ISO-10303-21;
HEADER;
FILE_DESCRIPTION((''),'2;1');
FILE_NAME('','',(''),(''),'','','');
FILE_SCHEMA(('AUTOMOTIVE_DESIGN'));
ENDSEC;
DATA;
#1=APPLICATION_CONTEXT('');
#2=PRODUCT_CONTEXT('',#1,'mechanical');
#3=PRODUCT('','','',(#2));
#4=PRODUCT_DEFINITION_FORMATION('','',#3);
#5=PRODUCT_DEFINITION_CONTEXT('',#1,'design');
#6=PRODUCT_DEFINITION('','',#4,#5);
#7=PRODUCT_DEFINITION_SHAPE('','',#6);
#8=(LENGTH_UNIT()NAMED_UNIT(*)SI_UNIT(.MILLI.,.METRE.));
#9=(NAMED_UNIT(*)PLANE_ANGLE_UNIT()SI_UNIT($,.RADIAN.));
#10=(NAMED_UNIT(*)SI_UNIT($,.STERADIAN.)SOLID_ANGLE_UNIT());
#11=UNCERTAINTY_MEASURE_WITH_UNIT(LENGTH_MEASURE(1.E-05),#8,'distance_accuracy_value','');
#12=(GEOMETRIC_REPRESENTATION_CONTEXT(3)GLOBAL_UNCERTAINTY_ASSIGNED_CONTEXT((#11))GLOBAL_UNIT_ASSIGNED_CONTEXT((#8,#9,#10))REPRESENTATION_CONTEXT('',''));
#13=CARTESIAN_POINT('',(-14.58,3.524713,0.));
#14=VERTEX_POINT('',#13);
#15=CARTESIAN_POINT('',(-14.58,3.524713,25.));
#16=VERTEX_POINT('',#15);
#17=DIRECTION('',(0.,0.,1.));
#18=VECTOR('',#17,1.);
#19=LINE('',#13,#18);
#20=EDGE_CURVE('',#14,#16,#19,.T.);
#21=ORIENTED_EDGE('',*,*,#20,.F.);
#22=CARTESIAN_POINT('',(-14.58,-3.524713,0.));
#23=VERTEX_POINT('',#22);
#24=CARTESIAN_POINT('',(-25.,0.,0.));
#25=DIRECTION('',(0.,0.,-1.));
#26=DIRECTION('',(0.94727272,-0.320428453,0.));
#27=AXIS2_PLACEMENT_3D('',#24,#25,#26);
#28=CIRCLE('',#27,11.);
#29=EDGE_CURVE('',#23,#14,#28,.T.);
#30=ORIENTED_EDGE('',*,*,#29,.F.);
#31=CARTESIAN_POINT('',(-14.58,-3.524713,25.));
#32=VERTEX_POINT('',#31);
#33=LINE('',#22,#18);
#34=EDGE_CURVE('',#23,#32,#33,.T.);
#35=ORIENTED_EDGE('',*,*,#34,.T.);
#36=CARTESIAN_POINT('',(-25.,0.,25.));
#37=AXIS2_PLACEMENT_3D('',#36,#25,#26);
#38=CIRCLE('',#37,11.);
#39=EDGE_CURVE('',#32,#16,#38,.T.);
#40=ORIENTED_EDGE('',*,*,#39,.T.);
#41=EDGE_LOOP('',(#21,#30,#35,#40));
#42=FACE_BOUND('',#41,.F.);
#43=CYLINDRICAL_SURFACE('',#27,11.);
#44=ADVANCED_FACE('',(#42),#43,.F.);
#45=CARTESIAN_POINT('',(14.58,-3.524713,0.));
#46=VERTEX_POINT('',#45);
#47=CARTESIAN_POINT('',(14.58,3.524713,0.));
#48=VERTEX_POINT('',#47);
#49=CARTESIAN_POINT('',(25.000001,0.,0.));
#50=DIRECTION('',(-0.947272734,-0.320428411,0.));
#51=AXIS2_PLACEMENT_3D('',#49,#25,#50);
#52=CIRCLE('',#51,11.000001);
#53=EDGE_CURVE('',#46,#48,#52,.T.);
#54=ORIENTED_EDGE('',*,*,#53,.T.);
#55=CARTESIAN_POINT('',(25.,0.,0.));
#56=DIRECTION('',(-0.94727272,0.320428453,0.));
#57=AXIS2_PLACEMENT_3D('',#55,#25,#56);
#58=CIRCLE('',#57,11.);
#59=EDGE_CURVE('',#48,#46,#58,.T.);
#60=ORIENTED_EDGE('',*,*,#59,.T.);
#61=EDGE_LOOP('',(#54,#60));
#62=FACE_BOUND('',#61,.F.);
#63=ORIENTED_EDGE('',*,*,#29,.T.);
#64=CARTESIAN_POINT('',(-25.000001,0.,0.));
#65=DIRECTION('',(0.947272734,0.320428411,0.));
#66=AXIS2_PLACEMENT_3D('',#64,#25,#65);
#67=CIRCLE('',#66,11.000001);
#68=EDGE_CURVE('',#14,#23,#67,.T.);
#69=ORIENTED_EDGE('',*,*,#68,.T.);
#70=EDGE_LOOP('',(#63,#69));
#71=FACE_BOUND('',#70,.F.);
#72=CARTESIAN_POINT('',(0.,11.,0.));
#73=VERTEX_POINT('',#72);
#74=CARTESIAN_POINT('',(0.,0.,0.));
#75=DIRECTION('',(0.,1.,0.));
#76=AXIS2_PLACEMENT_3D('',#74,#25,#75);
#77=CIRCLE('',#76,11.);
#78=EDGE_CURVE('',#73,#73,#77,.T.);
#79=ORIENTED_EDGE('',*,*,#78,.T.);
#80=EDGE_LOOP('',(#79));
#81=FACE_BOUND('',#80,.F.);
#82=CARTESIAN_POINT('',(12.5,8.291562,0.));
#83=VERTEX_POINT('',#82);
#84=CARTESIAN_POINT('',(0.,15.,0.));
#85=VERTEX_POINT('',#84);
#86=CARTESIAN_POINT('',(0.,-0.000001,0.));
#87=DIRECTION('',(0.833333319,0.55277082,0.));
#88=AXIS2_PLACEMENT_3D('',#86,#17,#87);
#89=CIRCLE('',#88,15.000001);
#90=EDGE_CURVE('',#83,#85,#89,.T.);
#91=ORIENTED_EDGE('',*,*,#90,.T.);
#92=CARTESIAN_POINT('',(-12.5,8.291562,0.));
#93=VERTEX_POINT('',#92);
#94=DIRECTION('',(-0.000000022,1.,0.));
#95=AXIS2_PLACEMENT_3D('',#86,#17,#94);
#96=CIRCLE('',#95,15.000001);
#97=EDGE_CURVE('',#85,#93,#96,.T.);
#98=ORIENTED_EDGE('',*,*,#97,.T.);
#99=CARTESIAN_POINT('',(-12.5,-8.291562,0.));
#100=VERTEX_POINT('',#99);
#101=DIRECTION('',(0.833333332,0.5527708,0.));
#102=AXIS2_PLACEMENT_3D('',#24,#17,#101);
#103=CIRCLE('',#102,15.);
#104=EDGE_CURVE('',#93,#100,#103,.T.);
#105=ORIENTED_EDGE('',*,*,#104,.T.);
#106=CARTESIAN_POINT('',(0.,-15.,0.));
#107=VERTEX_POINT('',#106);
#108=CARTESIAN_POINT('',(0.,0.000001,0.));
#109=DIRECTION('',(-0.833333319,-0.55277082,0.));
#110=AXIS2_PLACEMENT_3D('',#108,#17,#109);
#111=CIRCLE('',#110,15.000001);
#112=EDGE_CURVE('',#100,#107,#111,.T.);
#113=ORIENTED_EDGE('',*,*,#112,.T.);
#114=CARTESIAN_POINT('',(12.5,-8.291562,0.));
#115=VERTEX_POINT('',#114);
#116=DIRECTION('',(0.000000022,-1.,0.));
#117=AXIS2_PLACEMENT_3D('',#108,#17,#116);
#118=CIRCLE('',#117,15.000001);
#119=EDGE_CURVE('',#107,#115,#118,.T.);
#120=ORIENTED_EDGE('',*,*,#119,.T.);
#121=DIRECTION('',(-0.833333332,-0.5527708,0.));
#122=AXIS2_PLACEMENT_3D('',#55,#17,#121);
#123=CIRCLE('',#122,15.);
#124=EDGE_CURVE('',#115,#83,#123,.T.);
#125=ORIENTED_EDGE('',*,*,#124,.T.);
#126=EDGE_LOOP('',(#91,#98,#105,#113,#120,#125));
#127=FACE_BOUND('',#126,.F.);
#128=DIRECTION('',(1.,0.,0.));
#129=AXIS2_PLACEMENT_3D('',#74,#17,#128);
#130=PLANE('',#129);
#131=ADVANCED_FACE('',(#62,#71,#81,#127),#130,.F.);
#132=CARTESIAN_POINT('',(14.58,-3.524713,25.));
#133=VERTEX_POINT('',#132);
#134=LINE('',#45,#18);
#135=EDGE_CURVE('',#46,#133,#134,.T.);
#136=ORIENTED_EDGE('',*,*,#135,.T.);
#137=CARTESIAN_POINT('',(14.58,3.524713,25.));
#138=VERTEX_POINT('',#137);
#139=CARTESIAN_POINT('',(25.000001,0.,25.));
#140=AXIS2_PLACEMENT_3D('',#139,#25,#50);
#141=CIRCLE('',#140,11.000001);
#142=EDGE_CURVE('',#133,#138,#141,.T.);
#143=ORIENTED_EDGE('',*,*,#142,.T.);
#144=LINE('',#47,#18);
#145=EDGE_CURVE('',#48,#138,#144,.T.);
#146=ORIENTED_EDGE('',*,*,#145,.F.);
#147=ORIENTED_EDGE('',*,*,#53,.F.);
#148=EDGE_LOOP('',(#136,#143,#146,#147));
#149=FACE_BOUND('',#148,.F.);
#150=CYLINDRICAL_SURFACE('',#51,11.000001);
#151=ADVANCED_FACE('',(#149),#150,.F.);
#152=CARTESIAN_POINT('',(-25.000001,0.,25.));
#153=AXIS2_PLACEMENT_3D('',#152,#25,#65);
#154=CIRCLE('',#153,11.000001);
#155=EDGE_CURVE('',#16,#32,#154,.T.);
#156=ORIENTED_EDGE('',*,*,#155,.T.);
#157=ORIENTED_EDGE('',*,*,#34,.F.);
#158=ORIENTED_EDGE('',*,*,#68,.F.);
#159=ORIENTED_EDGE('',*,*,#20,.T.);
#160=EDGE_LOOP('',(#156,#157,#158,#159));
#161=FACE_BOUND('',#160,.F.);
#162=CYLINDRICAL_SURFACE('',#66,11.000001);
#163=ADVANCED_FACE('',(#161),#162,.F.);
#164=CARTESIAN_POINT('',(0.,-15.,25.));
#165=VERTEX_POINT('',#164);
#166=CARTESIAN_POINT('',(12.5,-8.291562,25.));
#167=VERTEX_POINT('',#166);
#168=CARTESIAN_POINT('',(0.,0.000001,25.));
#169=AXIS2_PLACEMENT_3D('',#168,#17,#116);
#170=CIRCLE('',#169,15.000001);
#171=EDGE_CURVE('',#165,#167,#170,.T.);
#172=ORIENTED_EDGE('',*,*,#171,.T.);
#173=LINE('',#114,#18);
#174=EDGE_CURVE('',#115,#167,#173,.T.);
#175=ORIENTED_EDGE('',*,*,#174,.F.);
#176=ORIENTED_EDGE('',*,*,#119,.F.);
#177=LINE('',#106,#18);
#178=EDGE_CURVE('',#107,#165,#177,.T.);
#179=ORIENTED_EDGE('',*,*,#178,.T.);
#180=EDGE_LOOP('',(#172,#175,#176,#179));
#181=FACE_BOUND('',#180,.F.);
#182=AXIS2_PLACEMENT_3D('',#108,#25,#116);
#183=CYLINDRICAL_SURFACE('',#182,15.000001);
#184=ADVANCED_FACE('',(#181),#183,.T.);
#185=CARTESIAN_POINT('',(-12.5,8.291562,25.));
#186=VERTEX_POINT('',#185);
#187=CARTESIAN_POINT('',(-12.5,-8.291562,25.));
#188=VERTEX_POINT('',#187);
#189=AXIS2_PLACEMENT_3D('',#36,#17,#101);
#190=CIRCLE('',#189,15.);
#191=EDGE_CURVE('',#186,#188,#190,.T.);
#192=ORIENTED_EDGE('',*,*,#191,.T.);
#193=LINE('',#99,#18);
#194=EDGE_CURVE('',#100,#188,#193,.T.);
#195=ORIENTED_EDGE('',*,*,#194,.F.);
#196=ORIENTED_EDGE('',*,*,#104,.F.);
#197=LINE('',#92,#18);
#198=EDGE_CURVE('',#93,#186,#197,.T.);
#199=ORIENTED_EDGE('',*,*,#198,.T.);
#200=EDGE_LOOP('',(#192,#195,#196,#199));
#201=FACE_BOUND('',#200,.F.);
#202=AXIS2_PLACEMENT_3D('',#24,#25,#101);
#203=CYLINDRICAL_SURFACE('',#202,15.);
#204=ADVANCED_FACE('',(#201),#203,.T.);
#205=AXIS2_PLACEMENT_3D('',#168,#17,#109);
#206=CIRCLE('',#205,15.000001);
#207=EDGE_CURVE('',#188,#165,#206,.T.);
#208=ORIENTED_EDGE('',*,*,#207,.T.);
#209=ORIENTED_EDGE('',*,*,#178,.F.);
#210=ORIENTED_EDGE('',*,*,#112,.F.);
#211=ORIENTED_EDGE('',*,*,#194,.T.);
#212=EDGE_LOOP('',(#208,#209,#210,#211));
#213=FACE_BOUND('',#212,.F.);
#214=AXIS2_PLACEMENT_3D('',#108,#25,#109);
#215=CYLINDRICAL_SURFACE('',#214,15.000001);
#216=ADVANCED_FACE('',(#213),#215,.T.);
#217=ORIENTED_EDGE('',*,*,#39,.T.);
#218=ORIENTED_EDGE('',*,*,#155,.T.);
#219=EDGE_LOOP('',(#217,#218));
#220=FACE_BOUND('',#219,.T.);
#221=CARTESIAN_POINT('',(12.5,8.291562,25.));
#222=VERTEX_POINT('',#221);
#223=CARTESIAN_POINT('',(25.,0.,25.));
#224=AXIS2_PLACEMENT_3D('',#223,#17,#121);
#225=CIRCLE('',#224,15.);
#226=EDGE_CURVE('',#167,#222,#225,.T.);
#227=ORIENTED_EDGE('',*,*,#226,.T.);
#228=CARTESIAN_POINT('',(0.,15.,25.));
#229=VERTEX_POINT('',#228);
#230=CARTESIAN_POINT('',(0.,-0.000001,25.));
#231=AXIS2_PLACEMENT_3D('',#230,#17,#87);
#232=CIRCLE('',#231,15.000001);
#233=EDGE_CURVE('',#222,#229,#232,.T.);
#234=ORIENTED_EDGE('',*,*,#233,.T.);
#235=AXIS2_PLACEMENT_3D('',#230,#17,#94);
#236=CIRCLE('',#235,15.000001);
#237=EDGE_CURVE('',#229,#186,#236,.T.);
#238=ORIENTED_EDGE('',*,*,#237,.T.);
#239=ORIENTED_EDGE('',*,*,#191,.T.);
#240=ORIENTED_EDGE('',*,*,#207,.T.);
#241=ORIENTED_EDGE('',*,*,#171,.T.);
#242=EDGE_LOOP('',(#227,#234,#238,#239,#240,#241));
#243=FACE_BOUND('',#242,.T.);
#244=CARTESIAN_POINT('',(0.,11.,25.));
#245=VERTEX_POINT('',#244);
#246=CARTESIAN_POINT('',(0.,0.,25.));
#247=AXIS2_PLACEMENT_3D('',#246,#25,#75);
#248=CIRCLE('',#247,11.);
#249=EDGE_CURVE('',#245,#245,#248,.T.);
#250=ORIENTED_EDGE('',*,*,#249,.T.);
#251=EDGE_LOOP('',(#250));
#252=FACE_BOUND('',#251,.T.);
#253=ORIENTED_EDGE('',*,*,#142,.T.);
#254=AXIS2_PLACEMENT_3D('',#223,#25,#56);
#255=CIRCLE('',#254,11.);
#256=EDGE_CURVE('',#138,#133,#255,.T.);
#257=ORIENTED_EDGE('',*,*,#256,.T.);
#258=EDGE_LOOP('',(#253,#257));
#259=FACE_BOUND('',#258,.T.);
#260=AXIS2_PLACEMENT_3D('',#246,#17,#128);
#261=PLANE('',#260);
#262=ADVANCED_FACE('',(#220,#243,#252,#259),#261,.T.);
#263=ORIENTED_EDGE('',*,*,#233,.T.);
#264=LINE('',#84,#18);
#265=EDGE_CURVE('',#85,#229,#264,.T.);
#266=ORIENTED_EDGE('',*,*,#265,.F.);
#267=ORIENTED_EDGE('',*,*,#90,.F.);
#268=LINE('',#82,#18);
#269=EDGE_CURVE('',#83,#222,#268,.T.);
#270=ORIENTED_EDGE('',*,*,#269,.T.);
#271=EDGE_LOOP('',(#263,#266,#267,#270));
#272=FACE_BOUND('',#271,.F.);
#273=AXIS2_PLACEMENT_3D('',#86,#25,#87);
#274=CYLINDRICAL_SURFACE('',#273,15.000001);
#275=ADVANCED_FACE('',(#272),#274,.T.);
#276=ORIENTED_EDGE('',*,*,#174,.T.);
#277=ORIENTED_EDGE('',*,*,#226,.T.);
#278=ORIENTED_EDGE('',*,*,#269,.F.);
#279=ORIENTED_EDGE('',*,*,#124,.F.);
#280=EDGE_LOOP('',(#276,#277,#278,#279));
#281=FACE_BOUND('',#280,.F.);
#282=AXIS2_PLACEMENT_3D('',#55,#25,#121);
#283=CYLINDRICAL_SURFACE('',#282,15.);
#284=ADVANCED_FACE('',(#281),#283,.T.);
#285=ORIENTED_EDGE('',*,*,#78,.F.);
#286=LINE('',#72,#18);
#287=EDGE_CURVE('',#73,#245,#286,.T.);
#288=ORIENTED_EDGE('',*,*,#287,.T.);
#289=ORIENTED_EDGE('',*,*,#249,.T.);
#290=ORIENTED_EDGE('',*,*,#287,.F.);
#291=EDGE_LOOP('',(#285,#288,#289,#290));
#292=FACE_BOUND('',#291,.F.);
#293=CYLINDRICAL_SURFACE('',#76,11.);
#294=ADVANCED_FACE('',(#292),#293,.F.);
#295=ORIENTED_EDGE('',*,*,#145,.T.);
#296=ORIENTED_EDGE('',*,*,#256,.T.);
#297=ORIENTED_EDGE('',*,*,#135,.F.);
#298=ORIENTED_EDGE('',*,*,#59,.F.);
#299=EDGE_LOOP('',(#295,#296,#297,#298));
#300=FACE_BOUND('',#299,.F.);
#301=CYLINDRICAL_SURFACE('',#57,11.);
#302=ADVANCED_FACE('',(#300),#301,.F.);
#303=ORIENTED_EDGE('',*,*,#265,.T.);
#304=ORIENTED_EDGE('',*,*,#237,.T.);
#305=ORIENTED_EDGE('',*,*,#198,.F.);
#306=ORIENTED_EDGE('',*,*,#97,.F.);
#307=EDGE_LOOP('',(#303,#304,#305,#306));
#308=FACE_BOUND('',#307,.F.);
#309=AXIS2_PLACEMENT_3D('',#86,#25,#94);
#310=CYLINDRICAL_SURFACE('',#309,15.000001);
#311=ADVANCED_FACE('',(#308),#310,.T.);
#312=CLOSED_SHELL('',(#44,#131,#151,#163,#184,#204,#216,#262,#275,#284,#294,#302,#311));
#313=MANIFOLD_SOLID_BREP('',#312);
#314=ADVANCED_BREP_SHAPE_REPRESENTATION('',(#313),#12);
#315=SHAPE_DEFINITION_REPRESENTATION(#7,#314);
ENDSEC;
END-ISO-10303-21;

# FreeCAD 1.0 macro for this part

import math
import FreeCAD as App
import Part
import Sketcher
from FreeCAD import Vector
Q = App.Units.Quantity

doc = App.newDocument("Part")
params = doc.addObject("Spreadsheet::Sheet", "Params")
for row, (alias, value) in enumerate([
    ("sketch1_diameter", "22 mm"),
    ("sketch1_radius", "15.000001 mm"),
    ("pad1_length", "25 mm"),
], start=1):
    params.set(f"A{row}", alias)
    params.set(f"B{row}", "=" + value)
    params.setAlias(f"B{row}", alias)

body = doc.addObject("PartDesign::Body", "Body")

sketch1 = body.newObject("Sketcher::SketchObject", "Sketch")
sketch1.AttachmentSupport = (doc.getObject("XY_Plane"), [""])
sketch1.MapMode = "FlatFace"
sketch1.addGeometry(Part.ArcOfCircle(Part.Circle(Vector(0, 0, 0), Vector(0, 0, 1), 15), math.radians(-146), math.radians(-90)), False)
sketch1.addGeometry(Part.ArcOfCircle(Part.Circle(Vector(0, 0, 0), Vector(0, 0, 1), 15), math.radians(-90), math.radians(-34)), False)
sketch1.addGeometry(Part.ArcOfCircle(Part.Circle(Vector(25, 0, 0), Vector(0, 0, 1), 15), math.radians(-146), math.radians(146)), False)
sketch1.addGeometry(Part.ArcOfCircle(Part.Circle(Vector(0, 0, 0), Vector(0, 0, 1), 15), math.radians(34), math.radians(90)), False)
sketch1.addGeometry(Part.ArcOfCircle(Part.Circle(Vector(0, 0, 0), Vector(0, 0, 1), 15), math.radians(90), math.radians(146)), False)
sketch1.addGeometry(Part.ArcOfCircle(Part.Circle(Vector(-25, 0, 0), Vector(0, 0, 1), 15), math.radians(34), math.radians(326)), False)
sketch1.addGeometry(Part.ArcOfCircle(Part.Circle(Vector(-25, 0, 0), Vector(0, 0, 1), 11), math.radians(-19), math.radians(19)), False)
sketch1.addGeometry(Part.ArcOfCircle(Part.Circle(Vector(-25, 0, 0), Vector(0, 0, 1), 11), math.radians(19), math.radians(341)), False)
sketch1.addGeometry(Part.Circle(Vector(0, 0, 0), Vector(0, 0, 1), 11), False)
sketch1.addGeometry(Part.ArcOfCircle(Part.Circle(Vector(25, 0, 0), Vector(0, 0, 1), 11), math.radians(-161), math.radians(161)), False)
sketch1.addGeometry(Part.ArcOfCircle(Part.Circle(Vector(25, 0, 0), Vector(0, 0, 1), 11), math.radians(161), math.radians(199)), False)
sketch1.addConstraint(Sketcher.Constraint("Tangent", 0, 2, 1, 1))
sketch1.addConstraint(Sketcher.Constraint("Coincident", 1, 2, 2, 1))
sketch1.addConstraint(Sketcher.Constraint("Coincident", 2, 2, 3, 1))
sketch1.addConstraint(Sketcher.Constraint("Tangent", 3, 2, 4, 1))
sketch1.addConstraint(Sketcher.Constraint("Coincident", 4, 2, 5, 1))
sketch1.addConstraint(Sketcher.Constraint("Coincident", 5, 2, 0, 1))
sketch1.addConstraint(Sketcher.Constraint("Tangent", 6, 1, 7, 2))
sketch1.addConstraint(Sketcher.Constraint("Coincident", 7, 1, 6, 2))
sketch1.addConstraint(Sketcher.Constraint("Tangent", 9, 1, 10, 2))
sketch1.addConstraint(Sketcher.Constraint("Coincident", 10, 1, 9, 2))
sketch1.addConstraint(Sketcher.Constraint("Coincident", 0, 3, -1, 1))
sketch1.addConstraint(Sketcher.Constraint("Coincident", 3, 3, -1, 1))
sketch1.addConstraint(Sketcher.Constraint("Coincident", 8, 3, -1, 1))
sketch1.addConstraint(Sketcher.Constraint("Coincident", 6, 3, 5, 3))
sketch1.addConstraint(Sketcher.Constraint("Coincident", 9, 3, 2, 3))
sketch1.addConstraint(Sketcher.Constraint("Equal", 0, 1))
sketch1.addConstraint(Sketcher.Constraint("Equal", 1, 2))
sketch1.addConstraint(Sketcher.Constraint("Equal", 2, 3))
sketch1.addConstraint(Sketcher.Constraint("Equal", 3, 4))
sketch1.addConstraint(Sketcher.Constraint("Equal", 4, 5))
sketch1.addConstraint(Sketcher.Constraint("Equal", 7, 8))
sketch1.addConstraint(Sketcher.Constraint("Equal", 8, 9))
sketch1.addConstraint(Sketcher.Constraint("Symmetric", 2, 3, 5, 3, -1, 1))
sketch1.addConstraint(Sketcher.Constraint("Symmetric", 6, 1, 9, 1, -2))
sketch1.addConstraint(Sketcher.Constraint("PointOnObject", 0, 2, -2))
sketch1.addConstraint(Sketcher.Constraint("PointOnObject", 3, 2, -2))
sketch1.addConstraint(Sketcher.Constraint("Horizontal", 7, 1, 10, 1))
sketch1.addConstraint(Sketcher.Constraint("Vertical", 6, 1, 7, 1))
sketch1.addConstraint(Sketcher.Constraint("Diameter", 8, Q("22 mm")))
sketch1.addConstraint(Sketcher.Constraint("Radius", 0, Q("15.000001 mm")))
sketch1.addConstraint(Sketcher.Constraint("DistanceX", -1, 1, 2, 3, Q("25 mm")))
sketch1.addConstraint(Sketcher.Constraint("DistanceX", 6, 1, -1, 1, Q("14.58 mm")))
sketch1.setExpression("Constraints[28]", "Params.sketch1_diameter")
sketch1.setExpression("Constraints[29]", "Params.sketch1_radius")
pad1 = body.newObject("PartDesign::Pad", "Pad")
pad1.Profile = sketch1
pad1.setExpression("Length", "Params.pad1_length")

doc.recompute()
